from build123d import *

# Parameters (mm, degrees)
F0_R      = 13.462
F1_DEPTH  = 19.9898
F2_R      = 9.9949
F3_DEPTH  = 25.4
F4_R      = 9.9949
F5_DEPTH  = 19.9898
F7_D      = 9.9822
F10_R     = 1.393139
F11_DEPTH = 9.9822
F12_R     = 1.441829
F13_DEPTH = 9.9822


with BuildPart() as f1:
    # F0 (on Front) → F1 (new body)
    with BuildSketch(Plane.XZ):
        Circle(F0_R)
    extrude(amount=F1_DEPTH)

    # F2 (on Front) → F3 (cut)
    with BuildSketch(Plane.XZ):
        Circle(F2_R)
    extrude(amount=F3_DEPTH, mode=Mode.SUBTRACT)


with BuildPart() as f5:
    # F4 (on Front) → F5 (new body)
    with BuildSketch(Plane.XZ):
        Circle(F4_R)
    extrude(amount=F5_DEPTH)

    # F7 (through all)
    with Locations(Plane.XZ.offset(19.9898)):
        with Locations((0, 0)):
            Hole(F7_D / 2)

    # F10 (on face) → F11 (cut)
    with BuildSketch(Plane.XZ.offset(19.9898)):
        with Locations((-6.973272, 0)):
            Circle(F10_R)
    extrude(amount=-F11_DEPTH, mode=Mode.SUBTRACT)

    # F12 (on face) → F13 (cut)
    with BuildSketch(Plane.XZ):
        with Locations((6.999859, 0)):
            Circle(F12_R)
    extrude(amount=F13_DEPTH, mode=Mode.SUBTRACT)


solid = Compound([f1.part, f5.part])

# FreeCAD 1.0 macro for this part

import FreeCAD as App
import Part
import Sketcher

V = App.Vector
Q = App.Units.Quantity

doc = App.newDocument("Part")
body = doc.addObject("PartDesign::Body", "Body")

sketch1 = body.newObject("Sketcher::SketchObject", "Sketch")
sketch1.AttachmentSupport = (doc.getObject("XZ_Plane"), [""])
sketch1.MapMode = "FlatFace"
sketch1.addGeometry(Part.Circle(V(0, 0, 0), V(0, 0, 1), 13.462), False)
sketch1.addConstraint([
    Sketcher.Constraint("Coincident", 0, 3, -1, 1),
    Sketcher.Constraint("Diameter", 0, Q("1.06 in")),
])
pad1 = body.newObject("PartDesign::Pad", "Pad")
pad1.Profile = sketch1
pad1.Length = Q("0.787 in")

sketch2 = body.newObject("Sketcher::SketchObject", "Sketch001")
sketch2.AttachmentSupport = (doc.getObject("XZ_Plane"), [""])
sketch2.MapMode = "FlatFace"
sketch2.addGeometry(Part.Circle(V(0, 0, 0), V(0, 0, 1), 9.9949), False)
sketch2.addConstraint([
    Sketcher.Constraint("Coincident", 0, 3, -1, 1),
    Sketcher.Constraint("Diameter", 0, Q("0.787 in")),
])
pocket1 = body.newObject("PartDesign::Pocket", "Pocket")
pocket1.Profile = sketch2
pocket1.Length = Q("1 in")
pocket1.Reversed = True
body2 = doc.addObject("PartDesign::Body", "Body001")

sketch3 = body2.newObject("Sketcher::SketchObject", "Sketch002")
sketch3.AttachmentSupport = (doc.getObject("XZ_Plane001"), [""])
sketch3.MapMode = "FlatFace"
sketch3.addGeometry(Part.Circle(V(0, 0, 0), V(0, 0, 1), 9.9949), False)
sketch3.addConstraint([
    Sketcher.Constraint("Coincident", 0, 3, -1, 1),
    Sketcher.Constraint("Diameter", 0, Q("0.787 in")),
])
pad2 = body2.newObject("PartDesign::Pad", "Pad001")
pad2.Profile = sketch3
pad2.Length = Q("0.787 in")

sketch4 = body2.newObject("Sketcher::SketchObject", "Sketch003")
sketch4.AttachmentSupport = (doc.getObject("XZ_Plane001"), [""])
sketch4.MapMode = "FlatFace"
sketch4.AttachmentOffset = App.Placement(V(0, 0, 0.787 * 25.4), App.Rotation())
sketch4.addGeometry(Part.Circle(V(0, 0, 0), V(0, 0, 1), 4.9911), False)
sketch4.addConstraint([
    Sketcher.Constraint("Coincident", 0, 3, -1, 1),
    Sketcher.Constraint("Diameter", 0, Q("0.393 in")),
])
doc.recompute()
hole = body2.newObject("PartDesign::Hole", "Hole")
hole.Profile = sketch4
hole.ThreadType = "None"
hole.Diameter = Q("0.393 in")
hole.DepthType = "ThroughAll"

sketch5 = body2.newObject("Sketcher::SketchObject", "Sketch004")
sketch5.AttachmentSupport = (doc.getObject("XZ_Plane001"), [""])
sketch5.MapMode = "FlatFace"
sketch5.AttachmentOffset = App.Placement(V(0, 0, 0.787 * 25.4), App.Rotation())
sketch5.addGeometry(Part.Circle(V(-6.973272, 0, 0), V(0, 0, 1), 1.393139), False)
sketch5.addConstraint([
    Sketcher.Constraint("PointOnObject", 0, 3, -1),
    Sketcher.Constraint("Diameter", 0, 2.786278),
    Sketcher.Constraint("DistanceX", 0, 3, -1, 1, 6.973272),
])
pocket2 = body2.newObject("PartDesign::Pocket", "Pocket001")
pocket2.Profile = sketch5
pocket2.Length = Q("0.393 in")

sketch6 = body2.newObject("Sketcher::SketchObject", "Sketch005")
sketch6.AttachmentSupport = (doc.getObject("XZ_Plane001"), [""])
sketch6.MapMode = "FlatFace"
sketch6.addGeometry(Part.Circle(V(6.999859, 0, 0), V(0, 0, 1), 1.441829), False)
sketch6.addConstraint([
    Sketcher.Constraint("PointOnObject", 0, 3, -1),
    Sketcher.Constraint("Diameter", 0, 2.883658),
    Sketcher.Constraint("DistanceX", -1, 1, 0, 3, 6.999859),
])
pocket3 = body2.newObject("PartDesign::Pocket", "Pocket002")
pocket3.Profile = sketch6
pocket3.Length = Q("0.393 in")
pocket3.Reversed = True

doc.recompute()
